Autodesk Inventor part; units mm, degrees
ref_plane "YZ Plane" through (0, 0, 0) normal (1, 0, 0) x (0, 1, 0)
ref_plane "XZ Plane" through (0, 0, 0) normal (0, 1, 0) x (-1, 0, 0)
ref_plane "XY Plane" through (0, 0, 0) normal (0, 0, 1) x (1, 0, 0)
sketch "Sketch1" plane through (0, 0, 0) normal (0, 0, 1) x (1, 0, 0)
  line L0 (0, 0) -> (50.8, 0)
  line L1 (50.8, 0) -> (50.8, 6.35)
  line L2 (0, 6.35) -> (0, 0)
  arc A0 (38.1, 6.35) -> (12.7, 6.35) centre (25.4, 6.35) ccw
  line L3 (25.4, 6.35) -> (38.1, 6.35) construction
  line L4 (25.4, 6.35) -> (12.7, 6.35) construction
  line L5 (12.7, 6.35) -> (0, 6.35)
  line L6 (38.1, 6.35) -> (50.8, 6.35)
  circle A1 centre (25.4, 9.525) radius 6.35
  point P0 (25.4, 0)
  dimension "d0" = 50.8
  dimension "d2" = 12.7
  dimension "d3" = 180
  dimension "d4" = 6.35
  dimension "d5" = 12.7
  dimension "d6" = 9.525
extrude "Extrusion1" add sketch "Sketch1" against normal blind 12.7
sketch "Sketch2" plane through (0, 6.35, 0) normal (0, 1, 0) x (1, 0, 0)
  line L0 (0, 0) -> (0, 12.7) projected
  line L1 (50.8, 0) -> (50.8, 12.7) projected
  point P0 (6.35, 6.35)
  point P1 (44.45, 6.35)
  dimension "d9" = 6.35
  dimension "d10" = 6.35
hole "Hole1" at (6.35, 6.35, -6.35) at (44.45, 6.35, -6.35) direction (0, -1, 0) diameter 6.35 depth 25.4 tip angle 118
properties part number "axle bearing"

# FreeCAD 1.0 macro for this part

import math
import FreeCAD as App
import Part
import Sketcher
from FreeCAD import Vector
Q = App.Units.Quantity

doc = App.newDocument("Part")
body = doc.addObject("PartDesign::Body", "Body")

sketch1 = body.newObject("Sketcher::SketchObject", "Sketch")
sketch1.AttachmentSupport = (doc.getObject("XY_Plane"), [""])
sketch1.MapMode = "FlatFace"
sketch1.addGeometry([
    Part.LineSegment(Vector(0, 6, 0), Vector(0, 0, 0)),
    Part.LineSegment(Vector(0, 0, 0), Vector(51, 0, 0)),
    Part.LineSegment(Vector(51, 0, 0), Vector(51, 6, 0)),
    Part.LineSegment(Vector(51, 6, 0), Vector(38, 6, 0)),
    Part.ArcOfCircle(Part.Circle(Vector(25, 6, 0), Vector(0, 0, 1), 13), math.radians(0), math.radians(180)),
    Part.LineSegment(Vector(13, 6, 0), Vector(0, 6, 0)),
    Part.Circle(Vector(25, 10, 0), Vector(0, 0, 1), 6),
], False)
sketch1.addConstraint([
    Sketcher.Constraint("Coincident", 0, 2, 1, 1),
    Sketcher.Constraint("Coincident", 1, 2, 2, 1),
    Sketcher.Constraint("Coincident", 2, 2, 3, 1),
    Sketcher.Constraint("Coincident", 3, 2, 4, 1),
    Sketcher.Constraint("Coincident", 4, 2, 5, 1),
    Sketcher.Constraint("Coincident", 5, 2, 0, 1),
    Sketcher.Constraint("Vertical", 0),
    Sketcher.Constraint("Horizontal", 1),
    Sketcher.Constraint("Vertical", 2),
    Sketcher.Constraint("Horizontal", 3),
    Sketcher.Constraint("Horizontal", 5),
    Sketcher.Constraint("Coincident", 0, 2, -1, 1),
    Sketcher.Constraint("Horizontal", 4, 3, 2, 2),
    Sketcher.Constraint("Horizontal", 3, 2, 4, 2),
    Sketcher.Constraint("Vertical", 4, 3, 6, 3),
    Sketcher.Constraint("Equal", 3, 5),
    Sketcher.Constraint("Diameter", 6, Q("0.5 in")),
    Sketcher.Constraint("Radius", 4, Q("0.5 in")),
    Sketcher.Constraint("DistanceX", 1, 1, 1, 2, Q("2 in")),
    Sketcher.Constraint("DistanceY", 0, 2, 0, 1, Q("0.25 in")),
    Sketcher.Constraint("DistanceY", -1, 1, 6, 3, Q("0.375 in")),
])
pad1 = body.newObject("PartDesign::Pad", "Pad")
pad1.Profile = sketch1
pad1.Length = Q("0.5 in")
pad1.Reversed = True

sketch2 = body.newObject("Sketcher::SketchObject", "Sketch001")
sketch2.AttachmentSupport = (doc.getObject("XZ_Plane"), [""])
sketch2.MapMode = "FlatFace"
sketch2.AttachmentOffset = App.Placement(Vector(0, 0, -0.25 * 25.4), App.Rotation())
sketch2.addGeometry([
    Part.Circle(Vector(6.3, -6.3, 0), Vector(0, 0, 1), 3.2),
    Part.Circle(Vector(44.5, -6.3, 0), Vector(0, 0, 1), 3.2),
], False)
sketch2.addConstraint([
    Sketcher.Constraint("Equal", 0, 1),
    Sketcher.Constraint("Horizontal", 0, 3, 1, 3),
    Sketcher.Constraint("Diameter", 0, Q("0.25 in")),
    Sketcher.Constraint("DistanceX", 0, 3, 1, 3, Q("1.5 in")),
    Sketcher.Constraint("DistanceX", -1, 1, 0, 3, Q("0.25 in")),
    Sketcher.Constraint("DistanceY", 0, 3, -1, 1, Q("0.25 in")),
])
doc.recompute()
hole = body.newObject("PartDesign::Hole", "Hole")
hole.Profile = sketch2
hole.ThreadType = "None"
hole.Diameter = Q("0.25 in")
hole.DepthType = "Dimension"
hole.Depth = Q("1 in")
hole.DrillPoint = "Angled"
hole.DrillPointAngle = 118
hole.Reversed = True

doc.recompute()
